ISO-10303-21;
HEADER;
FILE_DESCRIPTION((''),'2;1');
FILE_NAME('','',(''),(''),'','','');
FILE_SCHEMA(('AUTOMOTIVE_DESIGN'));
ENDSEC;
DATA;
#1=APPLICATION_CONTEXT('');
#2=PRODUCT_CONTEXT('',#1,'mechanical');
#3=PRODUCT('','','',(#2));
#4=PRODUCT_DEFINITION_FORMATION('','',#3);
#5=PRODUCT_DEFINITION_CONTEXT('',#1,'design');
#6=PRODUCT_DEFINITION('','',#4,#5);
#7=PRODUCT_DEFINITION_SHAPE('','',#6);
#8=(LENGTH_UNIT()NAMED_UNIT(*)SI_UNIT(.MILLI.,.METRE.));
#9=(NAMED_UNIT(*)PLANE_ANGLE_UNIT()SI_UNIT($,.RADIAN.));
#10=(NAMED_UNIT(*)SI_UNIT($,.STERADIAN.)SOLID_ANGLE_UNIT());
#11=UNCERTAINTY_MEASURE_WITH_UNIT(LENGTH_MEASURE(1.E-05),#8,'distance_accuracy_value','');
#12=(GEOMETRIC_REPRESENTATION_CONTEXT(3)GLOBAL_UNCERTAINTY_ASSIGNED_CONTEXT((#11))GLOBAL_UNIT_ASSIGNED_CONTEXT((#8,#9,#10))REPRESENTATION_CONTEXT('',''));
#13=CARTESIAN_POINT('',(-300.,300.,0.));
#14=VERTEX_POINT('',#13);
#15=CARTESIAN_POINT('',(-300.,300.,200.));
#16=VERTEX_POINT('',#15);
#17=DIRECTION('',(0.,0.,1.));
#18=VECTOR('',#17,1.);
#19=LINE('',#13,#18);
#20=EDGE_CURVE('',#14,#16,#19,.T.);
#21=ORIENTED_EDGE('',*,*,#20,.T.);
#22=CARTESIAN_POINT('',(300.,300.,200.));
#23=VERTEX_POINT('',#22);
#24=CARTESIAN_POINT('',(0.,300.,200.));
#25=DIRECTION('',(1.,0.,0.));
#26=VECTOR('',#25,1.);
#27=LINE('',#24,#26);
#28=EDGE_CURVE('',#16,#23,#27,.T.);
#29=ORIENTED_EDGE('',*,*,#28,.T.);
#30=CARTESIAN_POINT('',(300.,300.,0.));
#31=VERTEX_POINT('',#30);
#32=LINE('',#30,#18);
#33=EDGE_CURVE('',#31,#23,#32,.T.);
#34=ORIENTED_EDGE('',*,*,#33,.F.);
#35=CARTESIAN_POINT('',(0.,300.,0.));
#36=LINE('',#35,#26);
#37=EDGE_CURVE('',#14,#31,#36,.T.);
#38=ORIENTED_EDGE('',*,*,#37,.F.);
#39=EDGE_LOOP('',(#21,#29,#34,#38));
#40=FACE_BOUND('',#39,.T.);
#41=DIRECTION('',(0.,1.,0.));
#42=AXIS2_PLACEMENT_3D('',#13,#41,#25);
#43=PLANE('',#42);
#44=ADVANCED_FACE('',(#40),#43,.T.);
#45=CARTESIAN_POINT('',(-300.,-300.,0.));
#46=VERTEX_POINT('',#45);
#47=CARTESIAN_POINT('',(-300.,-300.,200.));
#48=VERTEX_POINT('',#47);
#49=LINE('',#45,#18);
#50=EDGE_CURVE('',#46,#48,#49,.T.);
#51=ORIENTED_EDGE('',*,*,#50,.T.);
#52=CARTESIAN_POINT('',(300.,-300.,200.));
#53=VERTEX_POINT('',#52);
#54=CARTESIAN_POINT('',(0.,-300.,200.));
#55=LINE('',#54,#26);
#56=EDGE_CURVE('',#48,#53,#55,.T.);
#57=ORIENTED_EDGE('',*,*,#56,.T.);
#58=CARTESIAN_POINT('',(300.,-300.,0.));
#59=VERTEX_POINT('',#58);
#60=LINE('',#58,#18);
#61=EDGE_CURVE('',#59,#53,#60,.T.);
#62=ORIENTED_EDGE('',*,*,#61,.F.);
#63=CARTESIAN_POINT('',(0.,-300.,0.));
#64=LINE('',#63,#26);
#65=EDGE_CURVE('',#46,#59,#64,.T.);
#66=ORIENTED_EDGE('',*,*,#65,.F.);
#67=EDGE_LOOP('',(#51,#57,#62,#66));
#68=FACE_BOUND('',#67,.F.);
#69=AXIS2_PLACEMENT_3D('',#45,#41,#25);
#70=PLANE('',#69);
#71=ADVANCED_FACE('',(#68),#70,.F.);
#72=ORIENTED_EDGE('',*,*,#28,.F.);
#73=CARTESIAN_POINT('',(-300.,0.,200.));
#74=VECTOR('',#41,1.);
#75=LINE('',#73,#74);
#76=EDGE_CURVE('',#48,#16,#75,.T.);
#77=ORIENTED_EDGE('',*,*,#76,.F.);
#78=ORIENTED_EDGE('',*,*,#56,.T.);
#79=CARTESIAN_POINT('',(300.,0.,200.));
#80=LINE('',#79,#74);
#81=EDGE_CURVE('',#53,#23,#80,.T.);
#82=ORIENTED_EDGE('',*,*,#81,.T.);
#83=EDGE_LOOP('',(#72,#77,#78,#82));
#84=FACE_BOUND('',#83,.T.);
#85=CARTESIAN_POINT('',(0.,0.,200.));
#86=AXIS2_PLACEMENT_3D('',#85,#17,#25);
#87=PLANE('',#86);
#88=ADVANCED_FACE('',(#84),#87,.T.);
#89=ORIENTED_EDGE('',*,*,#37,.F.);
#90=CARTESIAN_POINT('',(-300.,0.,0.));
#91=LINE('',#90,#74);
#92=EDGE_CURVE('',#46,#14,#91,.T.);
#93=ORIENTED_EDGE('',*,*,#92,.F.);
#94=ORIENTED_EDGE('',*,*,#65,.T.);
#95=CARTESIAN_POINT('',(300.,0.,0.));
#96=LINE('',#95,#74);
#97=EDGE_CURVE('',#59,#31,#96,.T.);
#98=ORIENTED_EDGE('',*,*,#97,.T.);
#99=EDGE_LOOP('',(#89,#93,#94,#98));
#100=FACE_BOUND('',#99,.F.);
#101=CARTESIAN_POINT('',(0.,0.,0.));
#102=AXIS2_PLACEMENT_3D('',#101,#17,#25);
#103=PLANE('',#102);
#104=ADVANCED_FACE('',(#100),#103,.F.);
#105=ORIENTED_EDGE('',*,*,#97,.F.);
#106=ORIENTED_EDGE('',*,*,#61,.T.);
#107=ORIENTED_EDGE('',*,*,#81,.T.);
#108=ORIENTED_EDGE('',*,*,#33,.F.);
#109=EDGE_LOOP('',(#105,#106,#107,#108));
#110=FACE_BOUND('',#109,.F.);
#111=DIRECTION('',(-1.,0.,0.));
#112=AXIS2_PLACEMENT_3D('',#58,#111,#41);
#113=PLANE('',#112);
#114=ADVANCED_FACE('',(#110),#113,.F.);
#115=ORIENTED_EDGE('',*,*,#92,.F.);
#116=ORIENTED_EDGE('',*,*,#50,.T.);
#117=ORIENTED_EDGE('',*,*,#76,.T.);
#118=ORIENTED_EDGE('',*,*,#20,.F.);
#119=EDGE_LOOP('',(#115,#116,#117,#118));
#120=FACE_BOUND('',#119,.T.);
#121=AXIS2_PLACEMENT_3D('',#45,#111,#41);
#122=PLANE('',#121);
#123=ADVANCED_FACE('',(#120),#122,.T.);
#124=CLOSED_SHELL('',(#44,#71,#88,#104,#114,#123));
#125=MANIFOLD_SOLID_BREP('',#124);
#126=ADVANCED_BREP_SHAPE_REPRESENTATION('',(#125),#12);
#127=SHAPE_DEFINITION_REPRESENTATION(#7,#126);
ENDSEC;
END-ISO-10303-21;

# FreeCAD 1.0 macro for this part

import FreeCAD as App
import Part
import Sketcher
Q = App.Units.Quantity


def add_polygon(sketch, points):
    """Adds a closed chain of lines whose ends are joined by coincident constraints."""
    first, n = sketch.GeometryCount, len(points)
    for a, b in zip(points, points[1:] + points[:1]):
        sketch.addGeometry(Part.LineSegment(App.Vector(*a, 0), App.Vector(*b, 0)), False)
    for i in range(n):
        sketch.addConstraint(Sketcher.Constraint("Coincident", first + i, 2, first + (i + 1) % n, 1))

doc = App.newDocument("Part")
body = doc.addObject("PartDesign::Body", "Body")

sketch1 = body.newObject("Sketcher::SketchObject", "Sketch")
sketch1.AttachmentSupport = (doc.getObject("XY_Plane"), [""])
sketch1.MapMode = "FlatFace"
add_polygon(sketch1, [(-300, 300), (-300, -300), (300, -300), (300, 300)])
sketch1.addConstraint(Sketcher.Constraint("Vertical", 0))
sketch1.addConstraint(Sketcher.Constraint("Horizontal", 1))
sketch1.addConstraint(Sketcher.Constraint("Vertical", 2))
sketch1.addConstraint(Sketcher.Constraint("Horizontal", 3))
sketch1.addConstraint(Sketcher.Constraint("Symmetric", 0, 2, 2, 2, -1, 1))
sketch1.addConstraint(Sketcher.Constraint("Equal", 3, 0))
sketch1.addConstraint(Sketcher.Constraint("DistanceX", 1, 1, 1, 2, Q("600 mm")))
pad1 = body.newObject("PartDesign::Pad", "Pad")
pad1.Profile = sketch1
pad1.Length = 200

doc.recompute()
